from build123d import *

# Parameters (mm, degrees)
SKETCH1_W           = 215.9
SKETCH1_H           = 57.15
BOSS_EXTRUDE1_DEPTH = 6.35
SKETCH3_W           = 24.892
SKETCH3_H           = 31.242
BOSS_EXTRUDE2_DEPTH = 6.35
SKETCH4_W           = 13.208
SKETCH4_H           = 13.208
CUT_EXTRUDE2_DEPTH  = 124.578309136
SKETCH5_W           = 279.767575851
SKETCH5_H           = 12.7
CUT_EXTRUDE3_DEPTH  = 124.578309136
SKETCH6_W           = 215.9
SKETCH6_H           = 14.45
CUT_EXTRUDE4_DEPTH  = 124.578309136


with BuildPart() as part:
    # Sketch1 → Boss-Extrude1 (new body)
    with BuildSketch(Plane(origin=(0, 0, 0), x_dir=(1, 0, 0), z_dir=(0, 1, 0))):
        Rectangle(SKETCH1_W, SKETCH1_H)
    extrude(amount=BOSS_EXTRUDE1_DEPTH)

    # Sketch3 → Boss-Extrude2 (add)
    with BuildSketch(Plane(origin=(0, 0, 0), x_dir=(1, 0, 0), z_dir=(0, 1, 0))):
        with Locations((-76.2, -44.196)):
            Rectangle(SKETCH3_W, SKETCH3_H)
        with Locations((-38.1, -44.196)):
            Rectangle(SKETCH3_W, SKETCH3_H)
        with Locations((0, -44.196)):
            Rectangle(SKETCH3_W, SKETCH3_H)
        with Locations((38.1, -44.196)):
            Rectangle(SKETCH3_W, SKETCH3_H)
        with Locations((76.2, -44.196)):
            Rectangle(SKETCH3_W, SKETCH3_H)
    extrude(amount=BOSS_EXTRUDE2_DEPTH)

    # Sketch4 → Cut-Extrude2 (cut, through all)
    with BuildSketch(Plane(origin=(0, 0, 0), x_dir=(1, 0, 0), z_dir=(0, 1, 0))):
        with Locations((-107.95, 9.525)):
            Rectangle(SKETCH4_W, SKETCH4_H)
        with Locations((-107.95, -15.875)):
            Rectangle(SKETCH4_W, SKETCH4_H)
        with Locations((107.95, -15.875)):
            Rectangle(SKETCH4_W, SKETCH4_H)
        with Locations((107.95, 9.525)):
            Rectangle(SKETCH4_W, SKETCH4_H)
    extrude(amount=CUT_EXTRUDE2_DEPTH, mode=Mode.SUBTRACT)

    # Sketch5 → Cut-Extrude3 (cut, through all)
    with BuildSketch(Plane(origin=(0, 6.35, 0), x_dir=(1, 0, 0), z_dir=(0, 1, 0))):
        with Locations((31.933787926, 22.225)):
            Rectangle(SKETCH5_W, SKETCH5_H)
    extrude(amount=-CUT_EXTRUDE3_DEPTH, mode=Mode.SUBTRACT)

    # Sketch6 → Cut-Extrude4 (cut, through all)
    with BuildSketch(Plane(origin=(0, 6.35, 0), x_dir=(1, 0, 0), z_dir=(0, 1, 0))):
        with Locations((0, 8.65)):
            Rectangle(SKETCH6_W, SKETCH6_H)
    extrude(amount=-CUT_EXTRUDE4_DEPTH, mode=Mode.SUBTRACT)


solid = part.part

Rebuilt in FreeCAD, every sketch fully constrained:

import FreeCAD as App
import Part
import Sketcher

V = App.Vector
Q = App.Units.Quantity

doc = App.newDocument("Part")
body = doc.addObject("PartDesign::Body", "Body")

# Sketch on XZ plane
sketch1 = doc.addObject("Sketcher::SketchObject", "Sketch")
body.addObject(sketch1)
sketch1.AttachmentSupport = (doc.XZ_Plane, [""])
sketch1.MapMode = "FlatFace"
sketch1.addGeometry([
    Part.LineSegment(V(-108, -29, 0), V(-108, 29, 0)),
    Part.LineSegment(V(-108, 29, 0), V(108, 29, 0)),
    Part.LineSegment(V(108, 29, 0), V(108, -29, 0)),
    Part.LineSegment(V(108, -29, 0), V(-108, -29, 0)),
], False)
sketch1.addConstraint([
    Sketcher.Constraint("Coincident", 0, 2, 1, 1),
    Sketcher.Constraint("Coincident", 1, 2, 2, 1),
    Sketcher.Constraint("Coincident", 2, 2, 3, 1),
    Sketcher.Constraint("Coincident", 3, 2, 0, 1),
    Sketcher.Constraint("Vertical", 0),
    Sketcher.Constraint("Horizontal", 1),
    Sketcher.Constraint("Vertical", 2),
    Sketcher.Constraint("Horizontal", 3),
    Sketcher.Constraint("Symmetric", 0, 2, 2, 2, -1, 1),
    Sketcher.Constraint("DistanceX", 1, 1, 1, 2, Q("8.5 in")),
    Sketcher.Constraint("DistanceY", 0, 1, 0, 2, Q("2.25 in")),
])
pad1 = doc.addObject("PartDesign::Pad", "Pad")
body.addObject(pad1)
pad1.Profile = sketch1
pad1.Length = Q("0.25 in")
pad1.Reversed = True

# Sketch on XZ plane
sketch2 = doc.addObject("Sketcher::SketchObject", "Sketch001")
body.addObject(sketch2)
sketch2.AttachmentSupport = (doc.XZ_Plane, [""])
sketch2.MapMode = "FlatFace"
sketch2.addGeometry([
    Part.LineSegment(V(-89, 29, 0), V(-89, 60, 0)),  # 0
    Part.LineSegment(V(-89, 60, 0), V(-64, 60, 0)),  # 1
    Part.LineSegment(V(-64, 60, 0), V(-64, 29, 0)),  # 2
    Part.LineSegment(V(-64, 29, 0), V(-89, 29, 0)),  # 3
    Part.LineSegment(V(-51, 29, 0), V(-51, 60, 0)),  # 4
    Part.LineSegment(V(-51, 60, 0), V(-26, 60, 0)),  # 5
    Part.LineSegment(V(-26, 60, 0), V(-26, 29, 0)),  # 6
    Part.LineSegment(V(-26, 29, 0), V(-51, 29, 0)),  # 7
    Part.LineSegment(V(-12, 29, 0), V(-12, 60, 0)),  # 8
    Part.LineSegment(V(-12, 60, 0), V(12, 60, 0)),  # 9
    Part.LineSegment(V(12, 60, 0), V(12, 29, 0)),  # 10
    Part.LineSegment(V(12, 29, 0), V(-12, 29, 0)),  # 11
    Part.LineSegment(V(26, 29, 0), V(26, 60, 0)),  # 12
    Part.LineSegment(V(26, 60, 0), V(51, 60, 0)),  # 13
    Part.LineSegment(V(51, 60, 0), V(51, 29, 0)),  # 14
    Part.LineSegment(V(51, 29, 0), V(26, 29, 0)),  # 15
    Part.LineSegment(V(64, 29, 0), V(64, 60, 0)),  # 16
    Part.LineSegment(V(64, 60, 0), V(89, 60, 0)),  # 17
    Part.LineSegment(V(89, 60, 0), V(89, 29, 0)),  # 18
    Part.LineSegment(V(89, 29, 0), V(64, 29, 0)),  # 19
], False)
sketch2.addConstraint([
    Sketcher.Constraint("Coincident", 0, 2, 1, 1),
    Sketcher.Constraint("Coincident", 1, 2, 2, 1),
    Sketcher.Constraint("Coincident", 2, 2, 3, 1),
    Sketcher.Constraint("Coincident", 3, 2, 0, 1),
    Sketcher.Constraint("Coincident", 4, 2, 5, 1),
    Sketcher.Constraint("Coincident", 5, 2, 6, 1),
    Sketcher.Constraint("Coincident", 6, 2, 7, 1),
    Sketcher.Constraint("Coincident", 7, 2, 4, 1),
    Sketcher.Constraint("Coincident", 8, 2, 9, 1),
    Sketcher.Constraint("Coincident", 9, 2, 10, 1),
    Sketcher.Constraint("Coincident", 10, 2, 11, 1),
    Sketcher.Constraint("Coincident", 11, 2, 8, 1),
    Sketcher.Constraint("Coincident", 12, 2, 13, 1),
    Sketcher.Constraint("Coincident", 13, 2, 14, 1),
    Sketcher.Constraint("Coincident", 14, 2, 15, 1),
    Sketcher.Constraint("Coincident", 15, 2, 12, 1),
    Sketcher.Constraint("Coincident", 16, 2, 17, 1),
    Sketcher.Constraint("Coincident", 17, 2, 18, 1),
    Sketcher.Constraint("Coincident", 18, 2, 19, 1),
    Sketcher.Constraint("Coincident", 19, 2, 16, 1),
    Sketcher.Constraint("Vertical", 0),
    Sketcher.Constraint("Horizontal", 1),
    Sketcher.Constraint("Vertical", 2),
    Sketcher.Constraint("Horizontal", 3),
    Sketcher.Constraint("Vertical", 4),
    Sketcher.Constraint("Horizontal", 5),
    Sketcher.Constraint("Vertical", 6),
    Sketcher.Constraint("Horizontal", 7),
    Sketcher.Constraint("Vertical", 8),
    Sketcher.Constraint("Horizontal", 9),
    Sketcher.Constraint("Vertical", 10),
    Sketcher.Constraint("Horizontal", 11),
    Sketcher.Constraint("Vertical", 12),
    Sketcher.Constraint("Horizontal", 13),
    Sketcher.Constraint("Vertical", 14),
    Sketcher.Constraint("Horizontal", 15),
    Sketcher.Constraint("Vertical", 16),
    Sketcher.Constraint("Horizontal", 17),
    Sketcher.Constraint("Vertical", 18),
    Sketcher.Constraint("Horizontal", 19),
    Sketcher.Constraint("Symmetric", 5, 2, 12, 2, -2),
    Sketcher.Constraint("Symmetric", 7, 2, 14, 2, -2),
    Sketcher.Constraint("Symmetric", 1, 2, 16, 2, -2),
    Sketcher.Constraint("Symmetric", 3, 2, 18, 2, -2),
    Sketcher.Constraint("Horizontal", 1, 2, 4, 2),
    Sketcher.Constraint("Horizontal", 3, 2, 6, 2),
    Sketcher.Constraint("Horizontal", 5, 2, 8, 2),
    Sketcher.Constraint("Horizontal", 7, 2, 10, 2),
    Sketcher.Constraint("Equal", 3, 5),
    Sketcher.Constraint("Equal", 7, 9),
    Sketcher.Constraint("DistanceX", 1, 1, 1, 2, Q("0.98 in")),
    Sketcher.Constraint("DistanceY", 0, 1, 0, 2, Q("1.23 in")),
    Sketcher.Constraint("DistanceX", 0, 2, 4, 2, Q("1.5 in")),
    Sketcher.Constraint("DistanceX", 4, 2, 8, 2, Q("1.5 in")),
    Sketcher.Constraint("DistanceX", 8, 2, 12, 2, Q("1.5 in")),
    Sketcher.Constraint("DistanceY", -1, 1, 0, 2, Q("2.355 in")),
])
pad2 = doc.addObject("PartDesign::Pad", "Pad001")
body.addObject(pad2)
pad2.Profile = sketch2
pad2.Length = Q("0.25 in")
pad2.Reversed = True

# Sketch on XZ plane
sketch3 = doc.addObject("Sketcher::SketchObject", "Sketch002")
body.addObject(sketch3)
sketch3.AttachmentSupport = (doc.XZ_Plane, [""])
sketch3.MapMode = "FlatFace"
sketch3.addGeometry([
    Part.LineSegment(V(-115, -16, 0), V(-115, -3, 0)),  # 0
    Part.LineSegment(V(-115, -3, 0), V(-101, -3, 0)),  # 1
    Part.LineSegment(V(-101, -3, 0), V(-101, -16, 0)),  # 2
    Part.LineSegment(V(-101, -16, 0), V(-115, -16, 0)),  # 3
    Part.LineSegment(V(-115, 9, 0), V(-115, 22, 0)),  # 4
    Part.LineSegment(V(-115, 22, 0), V(-101, 22, 0)),  # 5
    Part.LineSegment(V(-101, 22, 0), V(-101, 9, 0)),  # 6
    Part.LineSegment(V(-101, 9, 0), V(-115, 9, 0)),  # 7
    Part.LineSegment(V(101, 9, 0), V(101, 22, 0)),  # 8
    Part.LineSegment(V(101, 22, 0), V(115, 22, 0)),  # 9
    Part.LineSegment(V(115, 22, 0), V(115, 9, 0)),  # 10
    Part.LineSegment(V(115, 9, 0), V(101, 9, 0)),  # 11
    Part.LineSegment(V(101, -16, 0), V(101, -3, 0)),  # 12
    Part.LineSegment(V(101, -3, 0), V(115, -3, 0)),  # 13
    Part.LineSegment(V(115, -3, 0), V(115, -16, 0)),  # 14
    Part.LineSegment(V(115, -16, 0), V(101, -16, 0)),  # 15
], False)
sketch3.addConstraint([
    Sketcher.Constraint("Coincident", 0, 2, 1, 1),
    Sketcher.Constraint("Coincident", 1, 2, 2, 1),
    Sketcher.Constraint("Coincident", 2, 2, 3, 1),
    Sketcher.Constraint("Coincident", 3, 2, 0, 1),
    Sketcher.Constraint("Coincident", 4, 2, 5, 1),
    Sketcher.Constraint("Coincident", 5, 2, 6, 1),
    Sketcher.Constraint("Coincident", 6, 2, 7, 1),
    Sketcher.Constraint("Coincident", 7, 2, 4, 1),
    Sketcher.Constraint("Coincident", 8, 2, 9, 1),
    Sketcher.Constraint("Coincident", 9, 2, 10, 1),
    Sketcher.Constraint("Coincident", 10, 2, 11, 1),
    Sketcher.Constraint("Coincident", 11, 2, 8, 1),
    Sketcher.Constraint("Coincident", 12, 2, 13, 1),
    Sketcher.Constraint("Coincident", 13, 2, 14, 1),
    Sketcher.Constraint("Coincident", 14, 2, 15, 1),
    Sketcher.Constraint("Coincident", 15, 2, 12, 1),
    Sketcher.Constraint("Vertical", 0),
    Sketcher.Constraint("Horizontal", 1),
    Sketcher.Constraint("Vertical", 2),
    Sketcher.Constraint("Horizontal", 3),
    Sketcher.Constraint("Vertical", 4),
    Sketcher.Constraint("Horizontal", 5),
    Sketcher.Constraint("Vertical", 6),
    Sketcher.Constraint("Horizontal", 7),
    Sketcher.Constraint("Vertical", 8),
    Sketcher.Constraint("Horizontal", 9),
    Sketcher.Constraint("Vertical", 10),
    Sketcher.Constraint("Horizontal", 11),
    Sketcher.Constraint("Vertical", 12),
    Sketcher.Constraint("Horizontal", 13),
    Sketcher.Constraint("Vertical", 14),
    Sketcher.Constraint("Horizontal", 15),
    Sketcher.Constraint("Symmetric", 5, 2, 8, 2, -2),
    Sketcher.Constraint("Symmetric", 7, 2, 10, 2, -2),
    Sketcher.Constraint("Symmetric", 1, 2, 12, 2, -2),
    Sketcher.Constraint("Symmetric", 3, 2, 14, 2, -2),
    Sketcher.Constraint("Vertical", 3, 2, 4, 2),
    Sketcher.Constraint("Vertical", 2, 2, 5, 2),
    Sketcher.Constraint("Equal", 15, 0),
    Sketcher.Constraint("Equal", 2, 4),
    Sketcher.Constraint("DistanceY", 0, 2, 4, 2, Q("1 in")),
    Sketcher.Constraint("DistanceX", 1, 1, 1, 2, Q("0.52 in")),
    Sketcher.Constraint("DistanceX", 4, 2, 8, 2, Q("8.5 in")),
    Sketcher.Constraint("DistanceY", 0, 2, -1, 1, Q("0.115 in")),
])
pocket1 = doc.addObject("PartDesign::Pocket", "Pocket")
body.addObject(pocket1)
pocket1.Profile = sketch3
pocket1.Type = "ThroughAll"

# Sketch on XZ plane
sketch4 = doc.addObject("Sketcher::SketchObject", "Sketch003")
body.addObject(sketch4)
sketch4.AttachmentSupport = (doc.XZ_Plane, [""])
sketch4.MapMode = "FlatFace"
sketch4.AttachmentOffset = App.Placement(V(0, 0, -0.25 * 25.4), App.Rotation())
sketch4.addGeometry([
    Part.LineSegment(V(-108, -29, 0), V(-108, -16, 0)),
    Part.LineSegment(V(-108, -16, 0), V(172, -16, 0)),
    Part.LineSegment(V(172, -16, 0), V(172, -29, 0)),
    Part.LineSegment(V(172, -29, 0), V(-108, -29, 0)),
], False)
sketch4.addConstraint([
    Sketcher.Constraint("Coincident", 0, 2, 1, 1),
    Sketcher.Constraint("Coincident", 1, 2, 2, 1),
    Sketcher.Constraint("Coincident", 2, 2, 3, 1),
    Sketcher.Constraint("Coincident", 3, 2, 0, 1),
    Sketcher.Constraint("Vertical", 0),
    Sketcher.Constraint("Horizontal", 1),
    Sketcher.Constraint("Vertical", 2),
    Sketcher.Constraint("Horizontal", 3),
    Sketcher.Constraint("DistanceY", 0, 1, 0, 2, Q("0.5 in")),
    Sketcher.Constraint("DistanceX", 0, 2, -1, 1, Q("4.25 in")),
    Sketcher.Constraint("DistanceY", 0, 2, -1, 1, Q("0.625 in")),
    Sketcher.Constraint("DistanceX", 1, 1, 1, 2, Q("279.767576 mm")),
])
pocket2 = doc.addObject("PartDesign::Pocket", "Pocket001")
body.addObject(pocket2)
pocket2.Profile = sketch4
pocket2.Type = "ThroughAll"
pocket2.Reversed = True

# Sketch on XZ plane
sketch5 = doc.addObject("Sketcher::SketchObject", "Sketch004")
body.addObject(sketch5)
sketch5.AttachmentSupport = (doc.XZ_Plane, [""])
sketch5.MapMode = "FlatFace"
sketch5.AttachmentOffset = App.Placement(V(0, 0, -0.25 * 25.4), App.Rotation())
sketch5.addGeometry([
    Part.LineSegment(V(-108, -16, 0), V(-108, -1, 0)),
    Part.LineSegment(V(-108, -1, 0), V(108, -1, 0)),
    Part.LineSegment(V(108, -1, 0), V(108, -16, 0)),
    Part.LineSegment(V(108, -16, 0), V(-108, -16, 0)),
], False)
sketch5.addConstraint([
    Sketcher.Constraint("Coincident", 0, 2, 1, 1),
    Sketcher.Constraint("Coincident", 1, 2, 2, 1),
    Sketcher.Constraint("Coincident", 2, 2, 3, 1),
    Sketcher.Constraint("Coincident", 3, 2, 0, 1),
    Sketcher.Constraint("Vertical", 0),
    Sketcher.Constraint("Horizontal", 1),
    Sketcher.Constraint("Vertical", 2),
    Sketcher.Constraint("Horizontal", 3),
    Sketcher.Constraint("DistanceX", 1, 1, 1, 2, Q("8.5 in")),
    Sketcher.Constraint("DistanceX", 0, 2, -1, 1, Q("4.25 in")),
    Sketcher.Constraint("DistanceY", 2, 2, -1, 1, Q("0.625 in")),
    Sketcher.Constraint("DistanceY", 0, 1, 0, 2, Q("14.45 mm")),
])
pocket3 = doc.addObject("PartDesign::Pocket", "Pocket002")
body.addObject(pocket3)
pocket3.Profile = sketch5
pocket3.Type = "ThroughAll"
pocket3.Reversed = True

doc.recompute()
